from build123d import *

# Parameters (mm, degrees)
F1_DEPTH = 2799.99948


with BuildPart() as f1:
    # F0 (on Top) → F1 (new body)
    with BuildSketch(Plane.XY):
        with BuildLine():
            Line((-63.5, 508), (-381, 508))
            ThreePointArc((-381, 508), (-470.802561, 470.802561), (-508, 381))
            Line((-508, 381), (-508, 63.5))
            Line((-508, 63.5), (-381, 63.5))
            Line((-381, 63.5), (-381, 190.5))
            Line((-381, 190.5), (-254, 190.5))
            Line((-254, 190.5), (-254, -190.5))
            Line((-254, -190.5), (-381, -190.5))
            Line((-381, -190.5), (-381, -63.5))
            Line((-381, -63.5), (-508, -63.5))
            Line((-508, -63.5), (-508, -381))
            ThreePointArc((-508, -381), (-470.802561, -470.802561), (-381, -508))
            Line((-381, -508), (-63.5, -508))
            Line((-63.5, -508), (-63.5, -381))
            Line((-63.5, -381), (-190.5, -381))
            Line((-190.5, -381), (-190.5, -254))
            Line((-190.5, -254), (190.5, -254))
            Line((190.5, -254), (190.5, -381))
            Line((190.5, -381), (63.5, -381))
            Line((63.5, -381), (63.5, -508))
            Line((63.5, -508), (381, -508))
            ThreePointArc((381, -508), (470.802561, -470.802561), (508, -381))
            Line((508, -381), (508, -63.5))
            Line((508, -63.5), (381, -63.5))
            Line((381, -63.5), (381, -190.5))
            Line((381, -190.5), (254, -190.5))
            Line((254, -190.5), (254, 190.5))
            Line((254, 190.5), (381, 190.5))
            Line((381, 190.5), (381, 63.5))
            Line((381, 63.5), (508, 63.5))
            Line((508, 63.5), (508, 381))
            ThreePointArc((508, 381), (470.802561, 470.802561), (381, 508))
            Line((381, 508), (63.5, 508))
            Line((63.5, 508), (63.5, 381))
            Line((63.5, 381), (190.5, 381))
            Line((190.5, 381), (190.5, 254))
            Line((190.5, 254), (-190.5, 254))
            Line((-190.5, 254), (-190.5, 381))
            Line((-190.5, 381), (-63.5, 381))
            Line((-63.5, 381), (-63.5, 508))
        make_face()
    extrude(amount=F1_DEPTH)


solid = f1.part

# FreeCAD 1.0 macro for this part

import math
import FreeCAD as App
import Part
import Sketcher

V = App.Vector
Q = App.Units.Quantity

doc = App.newDocument("Part")
body = doc.addObject("PartDesign::Body", "Body")

# Sketch on XY plane
sketch1 = body.newObject("Sketcher::SketchObject", "Sketch")
sketch1.AttachmentSupport = (doc.getObject("XY_Plane"), [""])
sketch1.MapMode = "FlatFace"
sketch1.addGeometry(Part.LineSegment(V(-63.5, 508, 0), V(-381, 508, 0)), False)
sketch1.addGeometry(Part.ArcOfCircle(Part.Circle(V(-380.999999, 380.999999, 0), V(0, 0, 1), 127.000001), math.radians(90), math.radians(180)), False)
sketch1.addGeometry(Part.LineSegment(V(-508, 381, 0), V(-508, 63.5, 0)), False)
sketch1.addGeometry(Part.LineSegment(V(-508, 63.5, 0), V(-381, 63.5, 0)), False)
sketch1.addGeometry(Part.LineSegment(V(-381, 63.5, 0), V(-381, 190.5, 0)), False)
sketch1.addGeometry(Part.LineSegment(V(-381, 190.5, 0), V(-254, 190.5, 0)), False)
sketch1.addGeometry(Part.LineSegment(V(-254, 190.5, 0), V(-254, -190.5, 0)), False)
sketch1.addGeometry(Part.LineSegment(V(-254, -190.5, 0), V(-381, -190.5, 0)), False)
sketch1.addGeometry(Part.LineSegment(V(-381, -190.5, 0), V(-381, -63.5, 0)), False)
sketch1.addGeometry(Part.LineSegment(V(-381, -63.5, 0), V(-508, -63.5, 0)), False)
sketch1.addGeometry(Part.LineSegment(V(-508, -63.5, 0), V(-508, -381, 0)), False)
sketch1.addGeometry(Part.ArcOfCircle(Part.Circle(V(-380.999999, -380.999999, 0), V(0, 0, 1), 127.000001), math.radians(-180), math.radians(-90)), False)
sketch1.addGeometry(Part.LineSegment(V(-381, -508, 0), V(-63.5, -508, 0)), False)
sketch1.addGeometry(Part.LineSegment(V(-63.5, -508, 0), V(-63.5, -381, 0)), False)
sketch1.addGeometry(Part.LineSegment(V(-63.5, -381, 0), V(-190.5, -381, 0)), False)
sketch1.addGeometry(Part.LineSegment(V(-190.5, -381, 0), V(-190.5, -254, 0)), False)
sketch1.addGeometry(Part.LineSegment(V(-190.5, -254, 0), V(190.5, -254, 0)), False)
sketch1.addGeometry(Part.LineSegment(V(190.5, -254, 0), V(190.5, -381, 0)), False)
sketch1.addGeometry(Part.LineSegment(V(190.5, -381, 0), V(63.5, -381, 0)), False)
sketch1.addGeometry(Part.LineSegment(V(63.5, -381, 0), V(63.5, -508, 0)), False)
sketch1.addGeometry(Part.LineSegment(V(63.5, -508, 0), V(381, -508, 0)), False)
sketch1.addGeometry(Part.ArcOfCircle(Part.Circle(V(380.999999, -380.999999, 0), V(0, 0, 1), 127.000001), math.radians(-90), math.radians(0)), False)
sketch1.addGeometry(Part.LineSegment(V(508, -381, 0), V(508, -63.5, 0)), False)
sketch1.addGeometry(Part.LineSegment(V(508, -63.5, 0), V(381, -63.5, 0)), False)
sketch1.addGeometry(Part.LineSegment(V(381, -63.5, 0), V(381, -190.5, 0)), False)
sketch1.addGeometry(Part.LineSegment(V(381, -190.5, 0), V(254, -190.5, 0)), False)
sketch1.addGeometry(Part.LineSegment(V(254, -190.5, 0), V(254, 190.5, 0)), False)
sketch1.addGeometry(Part.LineSegment(V(254, 190.5, 0), V(381, 190.5, 0)), False)
sketch1.addGeometry(Part.LineSegment(V(381, 190.5, 0), V(381, 63.5, 0)), False)
sketch1.addGeometry(Part.LineSegment(V(381, 63.5, 0), V(508, 63.5, 0)), False)
sketch1.addGeometry(Part.LineSegment(V(508, 63.5, 0), V(508, 381, 0)), False)
sketch1.addGeometry(Part.ArcOfCircle(Part.Circle(V(380.999999, 380.999999, 0), V(0, 0, 1), 127.000001), math.radians(0), math.radians(90)), False)
sketch1.addGeometry(Part.LineSegment(V(381, 508, 0), V(63.5, 508, 0)), False)
sketch1.addGeometry(Part.LineSegment(V(63.5, 508, 0), V(63.5, 381, 0)), False)
sketch1.addGeometry(Part.LineSegment(V(63.5, 381, 0), V(190.5, 381, 0)), False)
sketch1.addGeometry(Part.LineSegment(V(190.5, 381, 0), V(190.5, 254, 0)), False)
sketch1.addGeometry(Part.LineSegment(V(190.5, 254, 0), V(-190.5, 254, 0)), False)
sketch1.addGeometry(Part.LineSegment(V(-190.5, 254, 0), V(-190.5, 381, 0)), False)
sketch1.addGeometry(Part.LineSegment(V(-190.5, 381, 0), V(-63.5, 381, 0)), False)
sketch1.addGeometry(Part.LineSegment(V(-63.5, 381, 0), V(-63.5, 508, 0)), False)
sketch1.addConstraint(Sketcher.Constraint("Tangent", 0, 2, 1, 1))
sketch1.addConstraint(Sketcher.Constraint("Tangent", 1, 2, 2, 1))
sketch1.addConstraint(Sketcher.Constraint("Coincident", 2, 2, 3, 1))
sketch1.addConstraint(Sketcher.Constraint("Coincident", 3, 2, 4, 1))
sketch1.addConstraint(Sketcher.Constraint("Coincident", 4, 2, 5, 1))
sketch1.addConstraint(Sketcher.Constraint("Coincident", 5, 2, 6, 1))
sketch1.addConstraint(Sketcher.Constraint("Coincident", 6, 2, 7, 1))
sketch1.addConstraint(Sketcher.Constraint("Coincident", 7, 2, 8, 1))
sketch1.addConstraint(Sketcher.Constraint("Coincident", 8, 2, 9, 1))
sketch1.addConstraint(Sketcher.Constraint("Coincident", 9, 2, 10, 1))
sketch1.addConstraint(Sketcher.Constraint("Tangent", 10, 2, 11, 1))
sketch1.addConstraint(Sketcher.Constraint("Tangent", 11, 2, 12, 1))
sketch1.addConstraint(Sketcher.Constraint("Coincident", 12, 2, 13, 1))
sketch1.addConstraint(Sketcher.Constraint("Coincident", 13, 2, 14, 1))
sketch1.addConstraint(Sketcher.Constraint("Coincident", 14, 2, 15, 1))
sketch1.addConstraint(Sketcher.Constraint("Coincident", 15, 2, 16, 1))
sketch1.addConstraint(Sketcher.Constraint("Coincident", 16, 2, 17, 1))
sketch1.addConstraint(Sketcher.Constraint("Coincident", 17, 2, 18, 1))
sketch1.addConstraint(Sketcher.Constraint("Coincident", 18, 2, 19, 1))
sketch1.addConstraint(Sketcher.Constraint("Coincident", 19, 2, 20, 1))
sketch1.addConstraint(Sketcher.Constraint("Tangent", 20, 2, 21, 1))
sketch1.addConstraint(Sketcher.Constraint("Tangent", 21, 2, 22, 1))
sketch1.addConstraint(Sketcher.Constraint("Coincident", 22, 2, 23, 1))
sketch1.addConstraint(Sketcher.Constraint("Coincident", 23, 2, 24, 1))
sketch1.addConstraint(Sketcher.Constraint("Coincident", 24, 2, 25, 1))
sketch1.addConstraint(Sketcher.Constraint("Coincident", 25, 2, 26, 1))
sketch1.addConstraint(Sketcher.Constraint("Coincident", 26, 2, 27, 1))
sketch1.addConstraint(Sketcher.Constraint("Coincident", 27, 2, 28, 1))
sketch1.addConstraint(Sketcher.Constraint("Coincident", 28, 2, 29, 1))
sketch1.addConstraint(Sketcher.Constraint("Coincident", 29, 2, 30, 1))
sketch1.addConstraint(Sketcher.Constraint("Tangent", 30, 2, 31, 1))
sketch1.addConstraint(Sketcher.Constraint("Tangent", 31, 2, 32, 1))
sketch1.addConstraint(Sketcher.Constraint("Coincident", 32, 2, 33, 1))
sketch1.addConstraint(Sketcher.Constraint("Coincident", 33, 2, 34, 1))
sketch1.addConstraint(Sketcher.Constraint("Coincident", 34, 2, 35, 1))
sketch1.addConstraint(Sketcher.Constraint("Coincident", 35, 2, 36, 1))
sketch1.addConstraint(Sketcher.Constraint("Coincident", 36, 2, 37, 1))
sketch1.addConstraint(Sketcher.Constraint("Coincident", 37, 2, 38, 1))
sketch1.addConstraint(Sketcher.Constraint("Coincident", 38, 2, 39, 1))
sketch1.addConstraint(Sketcher.Constraint("Coincident", 39, 2, 0, 1))
sketch1.addConstraint(Sketcher.Constraint("Horizontal", 0))
sketch1.addConstraint(Sketcher.Constraint("Vertical", 2))
sketch1.addConstraint(Sketcher.Constraint("Horizontal", 3))
sketch1.addConstraint(Sketcher.Constraint("Vertical", 4))
sketch1.addConstraint(Sketcher.Constraint("Horizontal", 5))
sketch1.addConstraint(Sketcher.Constraint("Vertical", 6))
sketch1.addConstraint(Sketcher.Constraint("Horizontal", 7))
sketch1.addConstraint(Sketcher.Constraint("Vertical", 8))
sketch1.addConstraint(Sketcher.Constraint("Horizontal", 9))
sketch1.addConstraint(Sketcher.Constraint("Vertical", 10))
sketch1.addConstraint(Sketcher.Constraint("Horizontal", 12))
sketch1.addConstraint(Sketcher.Constraint("Vertical", 13))
sketch1.addConstraint(Sketcher.Constraint("Horizontal", 14))
sketch1.addConstraint(Sketcher.Constraint("Vertical", 15))
sketch1.addConstraint(Sketcher.Constraint("Horizontal", 16))
sketch1.addConstraint(Sketcher.Constraint("Vertical", 17))
sketch1.addConstraint(Sketcher.Constraint("Horizontal", 18))
sketch1.addConstraint(Sketcher.Constraint("Vertical", 19))
sketch1.addConstraint(Sketcher.Constraint("Horizontal", 20))
sketch1.addConstraint(Sketcher.Constraint("Vertical", 22))
sketch1.addConstraint(Sketcher.Constraint("Horizontal", 23))
sketch1.addConstraint(Sketcher.Constraint("Vertical", 24))
sketch1.addConstraint(Sketcher.Constraint("Horizontal", 25))
sketch1.addConstraint(Sketcher.Constraint("Vertical", 26))
sketch1.addConstraint(Sketcher.Constraint("Horizontal", 27))
sketch1.addConstraint(Sketcher.Constraint("Vertical", 28))
sketch1.addConstraint(Sketcher.Constraint("Horizontal", 29))
sketch1.addConstraint(Sketcher.Constraint("Vertical", 30))
sketch1.addConstraint(Sketcher.Constraint("Horizontal", 32))
sketch1.addConstraint(Sketcher.Constraint("Vertical", 33))
sketch1.addConstraint(Sketcher.Constraint("Horizontal", 34))
sketch1.addConstraint(Sketcher.Constraint("Vertical", 35))
sketch1.addConstraint(Sketcher.Constraint("Horizontal", 36))
sketch1.addConstraint(Sketcher.Constraint("Vertical", 37))
sketch1.addConstraint(Sketcher.Constraint("Horizontal", 38))
sketch1.addConstraint(Sketcher.Constraint("Vertical", 39))
sketch1.addConstraint(Sketcher.Constraint("Equal", 1, 11))
sketch1.addConstraint(Sketcher.Constraint("Equal", 11, 21))
sketch1.addConstraint(Sketcher.Constraint("Equal", 21, 31))
sketch1.addConstraint(Sketcher.Constraint("Symmetric", 1, 3, 21, 3, -1, 1))
sketch1.addConstraint(Sketcher.Constraint("Symmetric", 11, 3, 31, 3, -1, 1))
sketch1.addConstraint(Sketcher.Constraint("Symmetric", 3, 2, 23, 2, -1, 1))
sketch1.addConstraint(Sketcher.Constraint("Symmetric", 5, 2, 25, 2, -1, 1))
sketch1.addConstraint(Sketcher.Constraint("Symmetric", 7, 2, 27, 2, -1, 1))
sketch1.addConstraint(Sketcher.Constraint("Symmetric", 13, 2, 33, 2, -1, 1))
sketch1.addConstraint(Sketcher.Constraint("Symmetric", 15, 2, 35, 2, -1, 1))
sketch1.addConstraint(Sketcher.Constraint("Symmetric", 17, 2, 37, 2, -1, 1))
sketch1.addConstraint(Sketcher.Constraint("Symmetric", 11, 3, 21, 3, -2))
sketch1.addConstraint(Sketcher.Constraint("Symmetric", 14, 2, 17, 2, -2))
sketch1.addConstraint(Sketcher.Constraint("Symmetric", 8, 2, 23, 2, -2))
sketch1.addConstraint(Sketcher.Constraint("Horizontal", 10, 2, 13, 2))
sketch1.addConstraint(Sketcher.Constraint("Horizontal", 7, 2, 24, 2))
sketch1.addConstraint(Sketcher.Constraint("Horizontal", 3, 2, 28, 2))
sketch1.addConstraint(Sketcher.Constraint("Vertical", 0, 2, 3, 2))
sketch1.addConstraint(Sketcher.Constraint("Vertical", 19, 2, 32, 2))
sketch1.addConstraint(Sketcher.Constraint("Vertical", 13, 2, 38, 2))
sketch1.addConstraint(Sketcher.Constraint("Equal", 3, 5))
sketch1.addConstraint(Sketcher.Constraint("Equal", 9, 14))
sketch1.addConstraint(Sketcher.Constraint("Equal", 32, 2))
sketch1.addConstraint(Sketcher.Constraint("Equal", 38, 4))
sketch1.addConstraint(Sketcher.Constraint("Equal", 36, 6))
sketch1.addConstraint(Sketcher.Constraint("Equal", 13, 15))
sketch1.addConstraint(Sketcher.Constraint("Radius", 1, Q("5 in")))
sketch1.addConstraint(Sketcher.Constraint("DistanceX", 16, 1, 16, 2, Q("15 in")))
sketch1.addConstraint(Sketcher.Constraint("DistanceX", 0, 2, 0, 1, Q("12.5 in")))
pad1 = body.newObject("PartDesign::Pad", "Pad")
pad1.Profile = sketch1
pad1.Length = Q("110.2362 in")

doc.recompute()
